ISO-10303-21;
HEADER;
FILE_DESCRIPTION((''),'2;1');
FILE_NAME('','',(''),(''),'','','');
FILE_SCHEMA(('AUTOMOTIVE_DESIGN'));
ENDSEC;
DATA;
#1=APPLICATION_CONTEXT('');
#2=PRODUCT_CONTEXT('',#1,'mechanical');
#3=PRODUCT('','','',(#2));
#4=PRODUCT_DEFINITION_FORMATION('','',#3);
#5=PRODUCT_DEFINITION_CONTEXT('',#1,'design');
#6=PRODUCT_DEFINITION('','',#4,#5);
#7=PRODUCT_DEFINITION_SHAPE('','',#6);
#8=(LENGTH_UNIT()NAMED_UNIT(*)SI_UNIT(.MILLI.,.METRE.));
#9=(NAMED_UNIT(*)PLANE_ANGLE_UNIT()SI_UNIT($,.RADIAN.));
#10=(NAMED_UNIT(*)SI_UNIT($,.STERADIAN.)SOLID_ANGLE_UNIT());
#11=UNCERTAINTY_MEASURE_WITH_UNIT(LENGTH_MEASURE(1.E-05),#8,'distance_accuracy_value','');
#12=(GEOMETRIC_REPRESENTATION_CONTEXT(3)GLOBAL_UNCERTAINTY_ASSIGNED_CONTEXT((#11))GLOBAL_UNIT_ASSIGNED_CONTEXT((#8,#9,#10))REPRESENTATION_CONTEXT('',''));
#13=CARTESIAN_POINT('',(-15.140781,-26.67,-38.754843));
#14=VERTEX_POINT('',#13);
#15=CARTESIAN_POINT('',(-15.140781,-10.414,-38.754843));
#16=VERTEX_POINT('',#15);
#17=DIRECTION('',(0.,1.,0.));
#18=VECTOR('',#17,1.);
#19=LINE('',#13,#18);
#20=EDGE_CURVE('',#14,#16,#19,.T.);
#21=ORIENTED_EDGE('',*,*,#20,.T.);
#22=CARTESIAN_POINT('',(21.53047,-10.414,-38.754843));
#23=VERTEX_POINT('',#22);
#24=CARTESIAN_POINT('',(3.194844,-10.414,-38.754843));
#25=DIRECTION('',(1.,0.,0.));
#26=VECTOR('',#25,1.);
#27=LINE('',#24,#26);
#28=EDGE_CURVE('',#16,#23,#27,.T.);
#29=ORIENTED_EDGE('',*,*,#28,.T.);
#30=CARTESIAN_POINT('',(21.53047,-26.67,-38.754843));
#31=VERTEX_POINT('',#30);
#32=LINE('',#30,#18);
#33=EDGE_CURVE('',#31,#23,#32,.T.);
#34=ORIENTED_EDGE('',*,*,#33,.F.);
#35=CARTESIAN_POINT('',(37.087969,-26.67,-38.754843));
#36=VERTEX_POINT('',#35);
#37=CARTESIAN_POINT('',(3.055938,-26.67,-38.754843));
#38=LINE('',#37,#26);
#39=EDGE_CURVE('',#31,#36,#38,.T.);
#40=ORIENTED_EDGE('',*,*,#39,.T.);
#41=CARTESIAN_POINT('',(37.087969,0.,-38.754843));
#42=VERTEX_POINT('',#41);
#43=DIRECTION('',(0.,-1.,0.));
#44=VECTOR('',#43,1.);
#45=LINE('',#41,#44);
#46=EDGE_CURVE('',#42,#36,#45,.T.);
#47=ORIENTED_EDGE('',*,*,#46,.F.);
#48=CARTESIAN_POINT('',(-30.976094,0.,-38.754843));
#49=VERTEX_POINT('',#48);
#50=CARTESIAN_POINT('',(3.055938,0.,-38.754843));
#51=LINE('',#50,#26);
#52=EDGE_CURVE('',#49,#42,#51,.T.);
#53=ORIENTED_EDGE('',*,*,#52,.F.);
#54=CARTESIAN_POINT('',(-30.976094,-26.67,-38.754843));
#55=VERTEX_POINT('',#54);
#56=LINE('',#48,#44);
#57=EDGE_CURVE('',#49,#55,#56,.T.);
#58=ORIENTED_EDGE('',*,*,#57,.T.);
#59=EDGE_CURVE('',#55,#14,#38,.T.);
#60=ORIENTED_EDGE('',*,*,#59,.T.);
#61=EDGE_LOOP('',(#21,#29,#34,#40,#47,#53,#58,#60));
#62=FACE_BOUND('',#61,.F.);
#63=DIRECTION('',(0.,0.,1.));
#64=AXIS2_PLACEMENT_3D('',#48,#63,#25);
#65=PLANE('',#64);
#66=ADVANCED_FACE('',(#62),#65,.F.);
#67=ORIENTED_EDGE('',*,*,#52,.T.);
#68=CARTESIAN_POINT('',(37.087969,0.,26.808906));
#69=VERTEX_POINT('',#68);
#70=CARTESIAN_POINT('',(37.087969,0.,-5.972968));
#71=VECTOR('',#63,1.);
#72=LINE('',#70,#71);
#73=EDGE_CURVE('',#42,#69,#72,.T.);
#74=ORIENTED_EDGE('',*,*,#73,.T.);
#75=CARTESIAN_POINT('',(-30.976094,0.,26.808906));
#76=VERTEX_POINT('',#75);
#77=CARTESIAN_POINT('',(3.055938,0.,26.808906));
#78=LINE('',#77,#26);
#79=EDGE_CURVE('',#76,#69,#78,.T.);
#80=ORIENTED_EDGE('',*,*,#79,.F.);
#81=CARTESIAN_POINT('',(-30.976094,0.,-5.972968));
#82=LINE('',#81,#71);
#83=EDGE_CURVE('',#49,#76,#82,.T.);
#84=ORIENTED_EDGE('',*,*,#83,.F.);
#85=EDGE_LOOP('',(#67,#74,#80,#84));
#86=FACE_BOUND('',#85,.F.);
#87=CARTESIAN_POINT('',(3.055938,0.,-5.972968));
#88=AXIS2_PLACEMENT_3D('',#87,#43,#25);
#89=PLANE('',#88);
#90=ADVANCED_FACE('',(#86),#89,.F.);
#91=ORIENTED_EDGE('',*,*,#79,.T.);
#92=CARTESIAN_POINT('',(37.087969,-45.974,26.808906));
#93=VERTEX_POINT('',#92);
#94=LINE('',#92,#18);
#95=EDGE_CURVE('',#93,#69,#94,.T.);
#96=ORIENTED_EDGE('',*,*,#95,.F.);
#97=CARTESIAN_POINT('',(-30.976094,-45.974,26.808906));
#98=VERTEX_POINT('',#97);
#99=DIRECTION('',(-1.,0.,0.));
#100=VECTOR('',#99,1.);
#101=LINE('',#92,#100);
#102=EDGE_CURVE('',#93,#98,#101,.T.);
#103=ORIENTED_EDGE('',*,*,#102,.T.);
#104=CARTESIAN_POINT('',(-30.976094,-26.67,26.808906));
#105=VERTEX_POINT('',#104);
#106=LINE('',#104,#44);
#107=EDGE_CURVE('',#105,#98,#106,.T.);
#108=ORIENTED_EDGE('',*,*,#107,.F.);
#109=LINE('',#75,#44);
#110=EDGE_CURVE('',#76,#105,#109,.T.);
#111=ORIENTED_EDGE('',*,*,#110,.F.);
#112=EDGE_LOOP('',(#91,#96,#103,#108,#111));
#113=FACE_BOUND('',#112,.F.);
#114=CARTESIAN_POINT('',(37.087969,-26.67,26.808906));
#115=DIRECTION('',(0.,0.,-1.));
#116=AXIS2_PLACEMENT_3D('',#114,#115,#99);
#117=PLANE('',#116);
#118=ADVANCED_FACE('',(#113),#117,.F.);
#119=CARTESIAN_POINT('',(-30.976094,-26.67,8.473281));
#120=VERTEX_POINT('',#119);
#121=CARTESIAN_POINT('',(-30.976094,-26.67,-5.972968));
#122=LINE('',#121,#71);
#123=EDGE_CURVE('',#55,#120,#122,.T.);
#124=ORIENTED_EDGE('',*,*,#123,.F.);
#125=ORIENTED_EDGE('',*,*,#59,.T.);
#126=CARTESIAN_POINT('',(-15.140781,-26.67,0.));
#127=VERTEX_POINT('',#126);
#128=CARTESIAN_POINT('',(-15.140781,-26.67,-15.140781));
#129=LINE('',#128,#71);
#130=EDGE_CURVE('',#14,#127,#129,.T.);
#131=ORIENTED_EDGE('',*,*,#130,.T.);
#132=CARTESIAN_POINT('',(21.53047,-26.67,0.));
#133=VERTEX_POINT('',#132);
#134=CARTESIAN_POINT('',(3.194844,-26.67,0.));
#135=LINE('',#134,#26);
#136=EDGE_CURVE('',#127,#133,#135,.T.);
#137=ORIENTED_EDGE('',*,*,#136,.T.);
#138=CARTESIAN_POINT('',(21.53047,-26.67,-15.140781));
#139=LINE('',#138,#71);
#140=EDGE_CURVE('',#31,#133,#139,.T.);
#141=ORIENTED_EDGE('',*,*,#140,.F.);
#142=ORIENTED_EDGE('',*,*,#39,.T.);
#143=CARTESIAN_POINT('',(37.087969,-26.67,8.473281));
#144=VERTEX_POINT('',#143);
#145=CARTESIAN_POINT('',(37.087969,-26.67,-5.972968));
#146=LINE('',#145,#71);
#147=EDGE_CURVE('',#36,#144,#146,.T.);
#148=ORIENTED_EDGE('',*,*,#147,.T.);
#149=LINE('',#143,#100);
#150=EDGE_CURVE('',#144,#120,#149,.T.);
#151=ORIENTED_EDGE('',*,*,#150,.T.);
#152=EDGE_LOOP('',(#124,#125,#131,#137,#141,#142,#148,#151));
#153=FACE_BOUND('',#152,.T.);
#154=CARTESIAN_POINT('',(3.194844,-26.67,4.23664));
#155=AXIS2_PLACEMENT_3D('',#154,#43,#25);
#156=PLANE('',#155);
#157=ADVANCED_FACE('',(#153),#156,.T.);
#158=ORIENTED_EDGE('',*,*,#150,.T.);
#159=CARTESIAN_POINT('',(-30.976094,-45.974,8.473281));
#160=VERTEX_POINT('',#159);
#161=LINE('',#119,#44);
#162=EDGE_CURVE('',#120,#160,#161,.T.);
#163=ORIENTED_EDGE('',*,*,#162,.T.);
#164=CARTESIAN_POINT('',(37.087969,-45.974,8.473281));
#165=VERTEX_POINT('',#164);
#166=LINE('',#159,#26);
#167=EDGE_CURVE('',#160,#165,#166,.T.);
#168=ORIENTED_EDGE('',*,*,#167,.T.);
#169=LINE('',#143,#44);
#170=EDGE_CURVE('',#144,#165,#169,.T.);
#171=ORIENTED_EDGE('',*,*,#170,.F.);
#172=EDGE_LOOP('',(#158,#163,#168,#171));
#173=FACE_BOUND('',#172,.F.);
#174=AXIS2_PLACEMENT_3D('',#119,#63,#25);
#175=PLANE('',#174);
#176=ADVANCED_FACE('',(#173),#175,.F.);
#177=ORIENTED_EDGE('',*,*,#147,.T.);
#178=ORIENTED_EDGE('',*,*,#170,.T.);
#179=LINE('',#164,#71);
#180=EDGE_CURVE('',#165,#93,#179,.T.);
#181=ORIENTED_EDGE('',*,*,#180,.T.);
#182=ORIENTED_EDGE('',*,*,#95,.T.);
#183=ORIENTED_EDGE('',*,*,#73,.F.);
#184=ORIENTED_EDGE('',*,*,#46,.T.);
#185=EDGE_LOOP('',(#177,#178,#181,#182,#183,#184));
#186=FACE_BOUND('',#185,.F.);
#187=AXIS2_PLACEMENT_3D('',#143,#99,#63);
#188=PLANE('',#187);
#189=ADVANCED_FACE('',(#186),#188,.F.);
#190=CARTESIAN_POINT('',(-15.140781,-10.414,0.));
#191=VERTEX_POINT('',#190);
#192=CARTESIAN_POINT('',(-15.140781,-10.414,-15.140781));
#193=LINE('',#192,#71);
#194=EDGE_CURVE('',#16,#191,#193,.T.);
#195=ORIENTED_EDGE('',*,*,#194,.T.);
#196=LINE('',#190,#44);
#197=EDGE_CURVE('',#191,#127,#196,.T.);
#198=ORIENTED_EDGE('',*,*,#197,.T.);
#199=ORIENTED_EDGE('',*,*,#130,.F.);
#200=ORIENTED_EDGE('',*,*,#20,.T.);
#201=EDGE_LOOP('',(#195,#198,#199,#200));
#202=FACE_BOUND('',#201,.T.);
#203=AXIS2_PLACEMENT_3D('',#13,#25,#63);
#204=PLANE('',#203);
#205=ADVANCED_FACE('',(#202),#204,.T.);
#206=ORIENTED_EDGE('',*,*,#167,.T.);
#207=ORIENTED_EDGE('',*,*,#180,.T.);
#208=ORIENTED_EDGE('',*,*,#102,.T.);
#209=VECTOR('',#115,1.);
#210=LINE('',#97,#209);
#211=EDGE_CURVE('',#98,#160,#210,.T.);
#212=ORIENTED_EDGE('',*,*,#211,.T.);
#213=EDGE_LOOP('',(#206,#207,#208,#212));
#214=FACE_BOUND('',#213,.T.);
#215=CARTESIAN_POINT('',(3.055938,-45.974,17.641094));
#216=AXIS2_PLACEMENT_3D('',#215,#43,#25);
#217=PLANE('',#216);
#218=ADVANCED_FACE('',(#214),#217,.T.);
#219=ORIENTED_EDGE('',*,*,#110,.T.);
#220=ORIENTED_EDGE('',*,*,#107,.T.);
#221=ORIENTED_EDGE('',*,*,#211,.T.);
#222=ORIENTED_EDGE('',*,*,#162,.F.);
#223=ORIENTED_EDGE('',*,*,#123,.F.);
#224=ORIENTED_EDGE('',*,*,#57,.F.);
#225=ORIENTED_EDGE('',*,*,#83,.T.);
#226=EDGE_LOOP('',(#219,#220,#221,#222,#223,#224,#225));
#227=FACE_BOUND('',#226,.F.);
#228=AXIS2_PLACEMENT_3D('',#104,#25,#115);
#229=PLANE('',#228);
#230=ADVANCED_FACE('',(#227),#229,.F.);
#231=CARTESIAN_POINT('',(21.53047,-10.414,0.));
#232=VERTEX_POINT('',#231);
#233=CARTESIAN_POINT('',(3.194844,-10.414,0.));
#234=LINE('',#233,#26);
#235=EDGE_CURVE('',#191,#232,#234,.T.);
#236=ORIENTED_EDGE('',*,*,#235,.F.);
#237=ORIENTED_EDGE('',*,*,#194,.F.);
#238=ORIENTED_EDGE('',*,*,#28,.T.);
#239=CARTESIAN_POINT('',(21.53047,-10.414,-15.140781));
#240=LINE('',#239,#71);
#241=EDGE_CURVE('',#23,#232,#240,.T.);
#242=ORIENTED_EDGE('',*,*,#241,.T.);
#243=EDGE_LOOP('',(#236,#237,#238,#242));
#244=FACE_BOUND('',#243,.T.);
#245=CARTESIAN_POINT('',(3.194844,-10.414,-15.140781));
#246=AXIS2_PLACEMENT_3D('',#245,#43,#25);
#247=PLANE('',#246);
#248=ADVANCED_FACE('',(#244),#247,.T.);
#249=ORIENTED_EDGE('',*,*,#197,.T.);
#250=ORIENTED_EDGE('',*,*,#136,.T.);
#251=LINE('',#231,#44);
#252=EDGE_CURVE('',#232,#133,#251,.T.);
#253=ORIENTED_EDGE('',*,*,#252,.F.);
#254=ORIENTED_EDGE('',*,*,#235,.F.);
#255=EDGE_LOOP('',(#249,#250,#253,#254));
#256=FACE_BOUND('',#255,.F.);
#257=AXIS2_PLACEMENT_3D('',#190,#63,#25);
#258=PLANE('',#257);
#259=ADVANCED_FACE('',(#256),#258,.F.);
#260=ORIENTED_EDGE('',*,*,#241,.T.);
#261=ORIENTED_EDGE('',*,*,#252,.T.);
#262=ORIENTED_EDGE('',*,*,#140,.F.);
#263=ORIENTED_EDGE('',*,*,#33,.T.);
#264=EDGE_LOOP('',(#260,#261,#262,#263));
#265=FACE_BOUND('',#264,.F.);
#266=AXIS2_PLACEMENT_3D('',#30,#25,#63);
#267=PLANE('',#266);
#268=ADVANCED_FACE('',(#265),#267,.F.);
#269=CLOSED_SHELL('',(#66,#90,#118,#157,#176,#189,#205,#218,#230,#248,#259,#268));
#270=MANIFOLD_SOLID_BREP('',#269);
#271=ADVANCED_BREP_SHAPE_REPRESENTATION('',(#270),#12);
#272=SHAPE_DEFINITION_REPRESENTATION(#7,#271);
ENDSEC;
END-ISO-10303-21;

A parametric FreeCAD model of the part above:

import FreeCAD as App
import Part
import Sketcher
Q = App.Units.Quantity


def add_polygon(sketch, points):
    """Adds a closed chain of lines whose ends are joined by coincident constraints."""
    first, n = sketch.GeometryCount, len(points)
    for a, b in zip(points, points[1:] + points[:1]):
        sketch.addGeometry(Part.LineSegment(App.Vector(*a, 0), App.Vector(*b, 0)), False)
    for i in range(n):
        sketch.addConstraint(Sketcher.Constraint("Coincident", first + i, 2, first + (i + 1) % n, 1))

doc = App.newDocument("Part")
body = doc.addObject("PartDesign::Body", "Body")

sketch1 = body.newObject("Sketcher::SketchObject", "Sketch")
sketch1.AttachmentSupport = (doc.getObject("XZ_Plane"), [""])
sketch1.MapMode = "FlatFace"
add_polygon(sketch1, [(-31, 27), (-31, -39), (37, -39), (37, 27)])
sketch1.addConstraint([
    Sketcher.Constraint("Vertical", 0),
    Sketcher.Constraint("Horizontal", 1),
    Sketcher.Constraint("Vertical", 2),
    Sketcher.Constraint("Horizontal", 3),
    Sketcher.Constraint("DistanceY", 0, 2, 0, 1, Q("65.56375 mm")),
    Sketcher.Constraint("DistanceX", 1, 1, 1, 2, Q("68.064064 mm")),
    Sketcher.Constraint("DistanceX", -1, 1, 1, 2, Q("37.087969 mm")),
    Sketcher.Constraint("DistanceY", 0, 2, -1, 1, Q("38.754843 mm")),
])
pad1 = body.newObject("PartDesign::Pad", "Pad")
pad1.Profile = sketch1
pad1.Length = Q("1.05 in")

sketch2 = body.newObject("Sketcher::SketchObject", "Sketch001")
sketch2.AttachmentSupport = (doc.getObject("XZ_Plane"), [""])
sketch2.MapMode = "FlatFace"
sketch2.AttachmentOffset = App.Placement(App.Vector(0, 0, 1.05 * 25.4), App.Rotation())
add_polygon(sketch2, [(-15, 8), (-15, -39), (22, -39), (22, 8)])
sketch2.addConstraint([
    Sketcher.Constraint("Vertical", 0),
    Sketcher.Constraint("Horizontal", 1),
    Sketcher.Constraint("Vertical", 2),
    Sketcher.Constraint("Horizontal", 3),
    Sketcher.Constraint("DistanceY", 0, 2, 0, 1, Q("1.859375 in")),
    Sketcher.Constraint("DistanceX", 1, 1, 1, 2, Q("36.671251 mm")),
    Sketcher.Constraint("DistanceX", 0, 2, -1, 1, Q("15.140781 mm")),
    Sketcher.Constraint("DistanceY", -1, 1, 2, 2, Q("8.473281 mm")),
])
pocket1 = body.newObject("PartDesign::Pocket", "Pocket")
pocket1.Profile = sketch2
pocket1.Length = Q("0.64 in")

sketch3 = body.newObject("Sketcher::SketchObject", "Sketch002")
sketch3.AttachmentSupport = (doc.getObject("XZ_Plane"), [""])
sketch3.MapMode = "FlatFace"
sketch3.AttachmentOffset = App.Placement(App.Vector(0, 0, 1.05 * 25.4), App.Rotation())
add_polygon(sketch3, [(37, 27), (-31, 27), (-31, 8), (37, 8)])
sketch3.addConstraint([
    Sketcher.Constraint("Horizontal", 0),
    Sketcher.Constraint("Vertical", 1),
    Sketcher.Constraint("Horizontal", 2),
    Sketcher.Constraint("Vertical", 3),
    Sketcher.Constraint("DistanceX", 0, 2, 0, 1, Q("68.064064 mm")),
    Sketcher.Constraint("DistanceY", 1, 2, 1, 1, Q("18.335626 mm")),
    Sketcher.Constraint("DistanceY", -1, 1, 1, 2, Q("8.473281 mm")),
    Sketcher.Constraint("DistanceX", -1, 1, 2, 2, Q("37.087969 mm")),
])
pad2 = body.newObject("PartDesign::Pad", "Pad001")
pad2.Profile = sketch3
pad2.Length = Q("0.76 in")

sketch4 = body.newObject("Sketcher::SketchObject", "Sketch003")
sketch4.AttachmentSupport = (doc.getObject("XZ_Plane"), [""])
sketch4.MapMode = "FlatFace"
sketch4.AttachmentOffset = App.Placement(App.Vector(0, 0, 0.41 * 25.4), App.Rotation())
add_polygon(sketch4, [(-15, 8), (-15, 0), (22, 0), (22, 8)])
sketch4.addConstraint([
    Sketcher.Constraint("Vertical", 0),
    Sketcher.Constraint("Horizontal", 1),
    Sketcher.Constraint("Vertical", 2),
    Sketcher.Constraint("Horizontal", 3),
    Sketcher.Constraint("PointOnObject", 0, 2, -1),
    Sketcher.Constraint("DistanceX", 1, 1, 1, 2, Q("36.671251 mm")),
    Sketcher.Constraint("DistanceY", 0, 2, 0, 1, Q("8.473281 mm")),
    Sketcher.Constraint("DistanceX", 0, 2, -1, 1, Q("15.140781 mm")),
])
pad3 = body.newObject("PartDesign::Pad", "Pad002")
pad3.Profile = sketch4
pad3.Length = Q("0.64 in")

doc.recompute()
